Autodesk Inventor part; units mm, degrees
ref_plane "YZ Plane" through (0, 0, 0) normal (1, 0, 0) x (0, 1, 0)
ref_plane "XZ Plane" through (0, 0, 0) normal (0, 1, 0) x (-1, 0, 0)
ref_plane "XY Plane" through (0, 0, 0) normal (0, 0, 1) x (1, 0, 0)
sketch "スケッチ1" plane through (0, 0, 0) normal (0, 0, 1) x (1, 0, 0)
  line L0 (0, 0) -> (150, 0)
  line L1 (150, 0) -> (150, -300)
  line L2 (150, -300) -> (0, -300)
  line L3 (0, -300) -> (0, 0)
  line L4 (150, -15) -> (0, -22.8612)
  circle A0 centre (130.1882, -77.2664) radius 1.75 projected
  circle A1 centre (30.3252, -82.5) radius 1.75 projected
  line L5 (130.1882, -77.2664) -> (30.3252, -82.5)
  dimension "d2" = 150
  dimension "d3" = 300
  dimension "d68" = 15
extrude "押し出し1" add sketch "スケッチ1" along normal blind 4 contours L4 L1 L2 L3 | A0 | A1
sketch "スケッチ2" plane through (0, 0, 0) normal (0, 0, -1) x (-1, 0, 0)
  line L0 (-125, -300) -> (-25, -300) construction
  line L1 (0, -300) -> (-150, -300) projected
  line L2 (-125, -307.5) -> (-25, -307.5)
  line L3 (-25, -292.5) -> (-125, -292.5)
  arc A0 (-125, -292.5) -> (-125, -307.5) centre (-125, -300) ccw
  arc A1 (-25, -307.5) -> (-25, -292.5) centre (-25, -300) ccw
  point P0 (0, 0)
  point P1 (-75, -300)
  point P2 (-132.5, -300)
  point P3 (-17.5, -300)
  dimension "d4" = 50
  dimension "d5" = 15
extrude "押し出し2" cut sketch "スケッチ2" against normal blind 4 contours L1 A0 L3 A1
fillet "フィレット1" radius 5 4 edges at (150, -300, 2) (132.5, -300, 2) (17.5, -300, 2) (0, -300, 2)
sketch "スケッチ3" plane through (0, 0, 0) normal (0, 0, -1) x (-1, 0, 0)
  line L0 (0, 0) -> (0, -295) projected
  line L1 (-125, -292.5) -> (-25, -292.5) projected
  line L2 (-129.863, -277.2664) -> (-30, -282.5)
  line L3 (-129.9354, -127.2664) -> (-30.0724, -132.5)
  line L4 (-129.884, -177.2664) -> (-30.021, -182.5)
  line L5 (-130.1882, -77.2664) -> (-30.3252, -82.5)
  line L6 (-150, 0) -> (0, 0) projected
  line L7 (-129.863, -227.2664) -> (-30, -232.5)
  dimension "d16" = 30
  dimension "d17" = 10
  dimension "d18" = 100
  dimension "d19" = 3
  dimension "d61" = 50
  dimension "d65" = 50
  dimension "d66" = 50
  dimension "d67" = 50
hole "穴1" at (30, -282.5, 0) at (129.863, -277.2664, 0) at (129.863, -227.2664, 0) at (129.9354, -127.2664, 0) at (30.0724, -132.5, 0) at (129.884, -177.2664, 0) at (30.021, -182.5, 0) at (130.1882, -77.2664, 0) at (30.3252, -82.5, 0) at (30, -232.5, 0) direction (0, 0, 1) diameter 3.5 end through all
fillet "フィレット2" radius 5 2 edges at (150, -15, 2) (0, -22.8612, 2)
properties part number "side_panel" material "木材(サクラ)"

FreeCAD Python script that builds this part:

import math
import FreeCAD as App
import Part
import Sketcher

V = App.Vector
Q = App.Units.Quantity


def edges_at(feature, points):
    """Names of the edges that pass closest to the given points."""
    edges = feature.Shape.Edges
    near = lambda p: min(range(len(edges)), key=lambda i: edges[i].distToShape(Part.Vertex(*p))[0])
    return sorted({f"Edge{near(p) + 1}" for p in points})

doc = App.newDocument("Part")
body = doc.addObject("PartDesign::Body", "Body")

sketch1 = body.newObject("Sketcher::SketchObject", "Sketch")
sketch1.AttachmentSupport = (doc.getObject("XY_Plane"), [""])
sketch1.MapMode = "FlatFace"
sketch1.addGeometry(Part.LineSegment(V(150, -15, 0), V(0, -23, 0)), False)
sketch1.addGeometry(Part.LineSegment(V(0, -23, 0), V(0, -300, 0)), False)
sketch1.addGeometry(Part.LineSegment(V(0, -300, 0), V(150, -300, 0)), False)
sketch1.addGeometry(Part.LineSegment(V(150, -300, 0), V(150, -15, 0)), False)
sketch1.addConstraint(Sketcher.Constraint("Coincident", 0, 2, 1, 1))
sketch1.addConstraint(Sketcher.Constraint("Coincident", 1, 2, 2, 1))
sketch1.addConstraint(Sketcher.Constraint("Coincident", 2, 2, 3, 1))
sketch1.addConstraint(Sketcher.Constraint("Coincident", 3, 2, 0, 1))
sketch1.addConstraint(Sketcher.Constraint("Vertical", 1))
sketch1.addConstraint(Sketcher.Constraint("Horizontal", 2))
sketch1.addConstraint(Sketcher.Constraint("Vertical", 3))
sketch1.addConstraint(Sketcher.Constraint("PointOnObject", 0, 2, -2))
sketch1.addConstraint(Sketcher.Constraint("DistanceX", 2, 1, 2, 2, 150.0))
sketch1.addConstraint(Sketcher.Constraint("DistanceY", 1, 2, -1, 1, 300.0))
sketch1.addConstraint(Sketcher.Constraint("DistanceY", 3, 2, -1, 1, 15.0))
sketch1.addConstraint(Sketcher.Constraint("Angle", 0, Q("-177 deg")))
pad1 = body.newObject("PartDesign::Pad", "Pad")
pad1.Profile = sketch1
pad1.Length = 4

sketch2 = body.newObject("Sketcher::SketchObject", "Sketch001")
sketch2.AttachmentSupport = (doc.getObject("XY_Plane"), [""])
sketch2.MapMode = "FlatFace"
sketch2.addGeometry(Part.LineSegment(V(132, -300, 0), V(18, -300, 0)), False)
sketch2.addGeometry(Part.ArcOfCircle(Part.Circle(V(25, -300, 0), V(0, 0, 1), 8), math.radians(90), math.radians(180)), False)
sketch2.addGeometry(Part.LineSegment(V(25, -292, 0), V(125, -292, 0)), False)
sketch2.addGeometry(Part.ArcOfCircle(Part.Circle(V(125, -300, 0), V(0, 0, 1), 8), math.radians(0), math.radians(90)), False)
sketch2.addConstraint(Sketcher.Constraint("Coincident", 0, 2, 1, 2))
sketch2.addConstraint(Sketcher.Constraint("Tangent", 1, 1, 2, 1))
sketch2.addConstraint(Sketcher.Constraint("Tangent", 2, 2, 3, 2))
sketch2.addConstraint(Sketcher.Constraint("Coincident", 3, 1, 0, 1))
sketch2.addConstraint(Sketcher.Constraint("Horizontal", 0))
sketch2.addConstraint(Sketcher.Constraint("Horizontal", 2))
sketch2.addConstraint(Sketcher.Constraint("Equal", 1, 3))
sketch2.addConstraint(Sketcher.Constraint("Horizontal", 3, 3, 0, 2))
sketch2.addConstraint(Sketcher.Constraint("Radius", 1, 7.5))
sketch2.addConstraint(Sketcher.Constraint("DistanceX", 0, 2, 0, 1, 115.0))
sketch2.addConstraint(Sketcher.Constraint("DistanceX", -1, 1, 1, 3, 25.0))
sketch2.addConstraint(Sketcher.Constraint("DistanceY", 1, 3, -1, 1, 300.0))
pocket1 = body.newObject("PartDesign::Pocket", "Pocket")
pocket1.Profile = sketch2
pocket1.Length = 4
pocket1.Reversed = True
doc.recompute()

fillet = body.newObject("PartDesign::Fillet", "Fillet")
fillet.Base = (pocket1, edges_at(pocket1, [
    (150, -300, 2),
    (132.5, -300, 2),
    (17.5, -300, 2),
    (0, -300, 2),
]))
fillet.Radius = 5

sketch3 = body.newObject("Sketcher::SketchObject", "Sketch002")
sketch3.AttachmentSupport = (doc.getObject("XY_Plane"), [""])
sketch3.MapMode = "FlatFace"
sketch3.addGeometry(Part.Circle(V(30, -282.5, 0), V(0, 0, 1), 1.8), False)
sketch3.addGeometry(Part.Circle(V(129.9, -277.3, 0), V(0, 0, 1), 1.8), False)
sketch3.addGeometry(Part.Circle(V(129.9, -227.3, 0), V(0, 0, 1), 1.8), False)
sketch3.addGeometry(Part.Circle(V(129.9, -127.3, 0), V(0, 0, 1), 1.8), False)
sketch3.addGeometry(Part.Circle(V(30.1, -132.5, 0), V(0, 0, 1), 1.8), False)
sketch3.addGeometry(Part.Circle(V(129.9, -177.3, 0), V(0, 0, 1), 1.8), False)
sketch3.addGeometry(Part.Circle(V(30, -182.5, 0), V(0, 0, 1), 1.8), False)
sketch3.addGeometry(Part.Circle(V(130.2, -77.3, 0), V(0, 0, 1), 1.8), False)
sketch3.addGeometry(Part.Circle(V(30.3, -82.5, 0), V(0, 0, 1), 1.8), False)
sketch3.addGeometry(Part.Circle(V(30, -232.5, 0), V(0, 0, 1), 1.8), False)
sketch3.addConstraint(Sketcher.Constraint("Equal", 0, 1))
sketch3.addConstraint(Sketcher.Constraint("Equal", 1, 2))
sketch3.addConstraint(Sketcher.Constraint("Equal", 2, 3))
sketch3.addConstraint(Sketcher.Constraint("Equal", 3, 4))
sketch3.addConstraint(Sketcher.Constraint("Equal", 4, 5))
sketch3.addConstraint(Sketcher.Constraint("Equal", 5, 6))
sketch3.addConstraint(Sketcher.Constraint("Equal", 6, 7))
sketch3.addConstraint(Sketcher.Constraint("Equal", 7, 8))
sketch3.addConstraint(Sketcher.Constraint("Equal", 8, 9))
sketch3.addConstraint(Sketcher.Constraint("Vertical", 1, 3, 2, 3))
sketch3.addConstraint(Sketcher.Constraint("Vertical", 0, 3, 9, 3))
sketch3.addConstraint(Sketcher.Constraint("Diameter", 0, 3.5))
sketch3.addConstraint(Sketcher.Constraint("DistanceX", -1, 1, 0, 3, 30.0))
sketch3.addConstraint(Sketcher.Constraint("DistanceY", 1, 3, 2, 3, 50.0))
sketch3.addConstraint(Sketcher.Constraint("DistanceY", 2, 3, 3, 3, 100.0))
sketch3.addConstraint(Sketcher.Constraint("DistanceY", 0, 3, 4, 3, 150.0))
sketch3.addConstraint(Sketcher.Constraint("DistanceY", 2, 3, 5, 3, 50.0))
sketch3.addConstraint(Sketcher.Constraint("DistanceY", 6, 3, 4, 3, 50.0))
sketch3.addConstraint(Sketcher.Constraint("DistanceY", 3, 3, 7, 3, 50.0))
sketch3.addConstraint(Sketcher.Constraint("DistanceY", 4, 3, 8, 3, 50.0))
sketch3.addConstraint(Sketcher.Constraint("DistanceY", 0, 3, 9, 3, 50.0))
sketch3.addConstraint(Sketcher.Constraint("DistanceY", 0, 3, -1, 1, 282.5))
sketch3.addConstraint(Sketcher.Constraint("DistanceX", -1, 1, 1, 3, 129.863))
sketch3.addConstraint(Sketcher.Constraint("DistanceX", -1, 1, 5, 3, 129.884))
sketch3.addConstraint(Sketcher.Constraint("DistanceX", -1, 1, 6, 3, 30.021))
sketch3.addConstraint(Sketcher.Constraint("DistanceX", 4, 3, 3, 3, 99.863))
sketch3.addConstraint(Sketcher.Constraint("DistanceX", 8, 3, 7, 3, 99.863))
sketch3.addConstraint(Sketcher.Constraint("DistanceY", 1, 3, -1, 1, 277.2664))
sketch3.addConstraint(Sketcher.Constraint("DistanceX", -1, 1, 3, 3, 129.9354))
sketch3.addConstraint(Sketcher.Constraint("DistanceX", -1, 1, 7, 3, 130.1882))
doc.recompute()
hole = body.newObject("PartDesign::Hole", "Hole")
hole.Profile = sketch3
hole.ThreadType = "None"
hole.Diameter = 3.5
hole.DepthType = "ThroughAll"
hole.Reversed = True
doc.recompute()

fillet2 = body.newObject("PartDesign::Fillet", "Fillet001")
fillet2.Base = (hole, edges_at(hole, [(150, -15, 2), (0, -22.861, 2)]))
fillet2.Radius = 5

doc.recompute()
